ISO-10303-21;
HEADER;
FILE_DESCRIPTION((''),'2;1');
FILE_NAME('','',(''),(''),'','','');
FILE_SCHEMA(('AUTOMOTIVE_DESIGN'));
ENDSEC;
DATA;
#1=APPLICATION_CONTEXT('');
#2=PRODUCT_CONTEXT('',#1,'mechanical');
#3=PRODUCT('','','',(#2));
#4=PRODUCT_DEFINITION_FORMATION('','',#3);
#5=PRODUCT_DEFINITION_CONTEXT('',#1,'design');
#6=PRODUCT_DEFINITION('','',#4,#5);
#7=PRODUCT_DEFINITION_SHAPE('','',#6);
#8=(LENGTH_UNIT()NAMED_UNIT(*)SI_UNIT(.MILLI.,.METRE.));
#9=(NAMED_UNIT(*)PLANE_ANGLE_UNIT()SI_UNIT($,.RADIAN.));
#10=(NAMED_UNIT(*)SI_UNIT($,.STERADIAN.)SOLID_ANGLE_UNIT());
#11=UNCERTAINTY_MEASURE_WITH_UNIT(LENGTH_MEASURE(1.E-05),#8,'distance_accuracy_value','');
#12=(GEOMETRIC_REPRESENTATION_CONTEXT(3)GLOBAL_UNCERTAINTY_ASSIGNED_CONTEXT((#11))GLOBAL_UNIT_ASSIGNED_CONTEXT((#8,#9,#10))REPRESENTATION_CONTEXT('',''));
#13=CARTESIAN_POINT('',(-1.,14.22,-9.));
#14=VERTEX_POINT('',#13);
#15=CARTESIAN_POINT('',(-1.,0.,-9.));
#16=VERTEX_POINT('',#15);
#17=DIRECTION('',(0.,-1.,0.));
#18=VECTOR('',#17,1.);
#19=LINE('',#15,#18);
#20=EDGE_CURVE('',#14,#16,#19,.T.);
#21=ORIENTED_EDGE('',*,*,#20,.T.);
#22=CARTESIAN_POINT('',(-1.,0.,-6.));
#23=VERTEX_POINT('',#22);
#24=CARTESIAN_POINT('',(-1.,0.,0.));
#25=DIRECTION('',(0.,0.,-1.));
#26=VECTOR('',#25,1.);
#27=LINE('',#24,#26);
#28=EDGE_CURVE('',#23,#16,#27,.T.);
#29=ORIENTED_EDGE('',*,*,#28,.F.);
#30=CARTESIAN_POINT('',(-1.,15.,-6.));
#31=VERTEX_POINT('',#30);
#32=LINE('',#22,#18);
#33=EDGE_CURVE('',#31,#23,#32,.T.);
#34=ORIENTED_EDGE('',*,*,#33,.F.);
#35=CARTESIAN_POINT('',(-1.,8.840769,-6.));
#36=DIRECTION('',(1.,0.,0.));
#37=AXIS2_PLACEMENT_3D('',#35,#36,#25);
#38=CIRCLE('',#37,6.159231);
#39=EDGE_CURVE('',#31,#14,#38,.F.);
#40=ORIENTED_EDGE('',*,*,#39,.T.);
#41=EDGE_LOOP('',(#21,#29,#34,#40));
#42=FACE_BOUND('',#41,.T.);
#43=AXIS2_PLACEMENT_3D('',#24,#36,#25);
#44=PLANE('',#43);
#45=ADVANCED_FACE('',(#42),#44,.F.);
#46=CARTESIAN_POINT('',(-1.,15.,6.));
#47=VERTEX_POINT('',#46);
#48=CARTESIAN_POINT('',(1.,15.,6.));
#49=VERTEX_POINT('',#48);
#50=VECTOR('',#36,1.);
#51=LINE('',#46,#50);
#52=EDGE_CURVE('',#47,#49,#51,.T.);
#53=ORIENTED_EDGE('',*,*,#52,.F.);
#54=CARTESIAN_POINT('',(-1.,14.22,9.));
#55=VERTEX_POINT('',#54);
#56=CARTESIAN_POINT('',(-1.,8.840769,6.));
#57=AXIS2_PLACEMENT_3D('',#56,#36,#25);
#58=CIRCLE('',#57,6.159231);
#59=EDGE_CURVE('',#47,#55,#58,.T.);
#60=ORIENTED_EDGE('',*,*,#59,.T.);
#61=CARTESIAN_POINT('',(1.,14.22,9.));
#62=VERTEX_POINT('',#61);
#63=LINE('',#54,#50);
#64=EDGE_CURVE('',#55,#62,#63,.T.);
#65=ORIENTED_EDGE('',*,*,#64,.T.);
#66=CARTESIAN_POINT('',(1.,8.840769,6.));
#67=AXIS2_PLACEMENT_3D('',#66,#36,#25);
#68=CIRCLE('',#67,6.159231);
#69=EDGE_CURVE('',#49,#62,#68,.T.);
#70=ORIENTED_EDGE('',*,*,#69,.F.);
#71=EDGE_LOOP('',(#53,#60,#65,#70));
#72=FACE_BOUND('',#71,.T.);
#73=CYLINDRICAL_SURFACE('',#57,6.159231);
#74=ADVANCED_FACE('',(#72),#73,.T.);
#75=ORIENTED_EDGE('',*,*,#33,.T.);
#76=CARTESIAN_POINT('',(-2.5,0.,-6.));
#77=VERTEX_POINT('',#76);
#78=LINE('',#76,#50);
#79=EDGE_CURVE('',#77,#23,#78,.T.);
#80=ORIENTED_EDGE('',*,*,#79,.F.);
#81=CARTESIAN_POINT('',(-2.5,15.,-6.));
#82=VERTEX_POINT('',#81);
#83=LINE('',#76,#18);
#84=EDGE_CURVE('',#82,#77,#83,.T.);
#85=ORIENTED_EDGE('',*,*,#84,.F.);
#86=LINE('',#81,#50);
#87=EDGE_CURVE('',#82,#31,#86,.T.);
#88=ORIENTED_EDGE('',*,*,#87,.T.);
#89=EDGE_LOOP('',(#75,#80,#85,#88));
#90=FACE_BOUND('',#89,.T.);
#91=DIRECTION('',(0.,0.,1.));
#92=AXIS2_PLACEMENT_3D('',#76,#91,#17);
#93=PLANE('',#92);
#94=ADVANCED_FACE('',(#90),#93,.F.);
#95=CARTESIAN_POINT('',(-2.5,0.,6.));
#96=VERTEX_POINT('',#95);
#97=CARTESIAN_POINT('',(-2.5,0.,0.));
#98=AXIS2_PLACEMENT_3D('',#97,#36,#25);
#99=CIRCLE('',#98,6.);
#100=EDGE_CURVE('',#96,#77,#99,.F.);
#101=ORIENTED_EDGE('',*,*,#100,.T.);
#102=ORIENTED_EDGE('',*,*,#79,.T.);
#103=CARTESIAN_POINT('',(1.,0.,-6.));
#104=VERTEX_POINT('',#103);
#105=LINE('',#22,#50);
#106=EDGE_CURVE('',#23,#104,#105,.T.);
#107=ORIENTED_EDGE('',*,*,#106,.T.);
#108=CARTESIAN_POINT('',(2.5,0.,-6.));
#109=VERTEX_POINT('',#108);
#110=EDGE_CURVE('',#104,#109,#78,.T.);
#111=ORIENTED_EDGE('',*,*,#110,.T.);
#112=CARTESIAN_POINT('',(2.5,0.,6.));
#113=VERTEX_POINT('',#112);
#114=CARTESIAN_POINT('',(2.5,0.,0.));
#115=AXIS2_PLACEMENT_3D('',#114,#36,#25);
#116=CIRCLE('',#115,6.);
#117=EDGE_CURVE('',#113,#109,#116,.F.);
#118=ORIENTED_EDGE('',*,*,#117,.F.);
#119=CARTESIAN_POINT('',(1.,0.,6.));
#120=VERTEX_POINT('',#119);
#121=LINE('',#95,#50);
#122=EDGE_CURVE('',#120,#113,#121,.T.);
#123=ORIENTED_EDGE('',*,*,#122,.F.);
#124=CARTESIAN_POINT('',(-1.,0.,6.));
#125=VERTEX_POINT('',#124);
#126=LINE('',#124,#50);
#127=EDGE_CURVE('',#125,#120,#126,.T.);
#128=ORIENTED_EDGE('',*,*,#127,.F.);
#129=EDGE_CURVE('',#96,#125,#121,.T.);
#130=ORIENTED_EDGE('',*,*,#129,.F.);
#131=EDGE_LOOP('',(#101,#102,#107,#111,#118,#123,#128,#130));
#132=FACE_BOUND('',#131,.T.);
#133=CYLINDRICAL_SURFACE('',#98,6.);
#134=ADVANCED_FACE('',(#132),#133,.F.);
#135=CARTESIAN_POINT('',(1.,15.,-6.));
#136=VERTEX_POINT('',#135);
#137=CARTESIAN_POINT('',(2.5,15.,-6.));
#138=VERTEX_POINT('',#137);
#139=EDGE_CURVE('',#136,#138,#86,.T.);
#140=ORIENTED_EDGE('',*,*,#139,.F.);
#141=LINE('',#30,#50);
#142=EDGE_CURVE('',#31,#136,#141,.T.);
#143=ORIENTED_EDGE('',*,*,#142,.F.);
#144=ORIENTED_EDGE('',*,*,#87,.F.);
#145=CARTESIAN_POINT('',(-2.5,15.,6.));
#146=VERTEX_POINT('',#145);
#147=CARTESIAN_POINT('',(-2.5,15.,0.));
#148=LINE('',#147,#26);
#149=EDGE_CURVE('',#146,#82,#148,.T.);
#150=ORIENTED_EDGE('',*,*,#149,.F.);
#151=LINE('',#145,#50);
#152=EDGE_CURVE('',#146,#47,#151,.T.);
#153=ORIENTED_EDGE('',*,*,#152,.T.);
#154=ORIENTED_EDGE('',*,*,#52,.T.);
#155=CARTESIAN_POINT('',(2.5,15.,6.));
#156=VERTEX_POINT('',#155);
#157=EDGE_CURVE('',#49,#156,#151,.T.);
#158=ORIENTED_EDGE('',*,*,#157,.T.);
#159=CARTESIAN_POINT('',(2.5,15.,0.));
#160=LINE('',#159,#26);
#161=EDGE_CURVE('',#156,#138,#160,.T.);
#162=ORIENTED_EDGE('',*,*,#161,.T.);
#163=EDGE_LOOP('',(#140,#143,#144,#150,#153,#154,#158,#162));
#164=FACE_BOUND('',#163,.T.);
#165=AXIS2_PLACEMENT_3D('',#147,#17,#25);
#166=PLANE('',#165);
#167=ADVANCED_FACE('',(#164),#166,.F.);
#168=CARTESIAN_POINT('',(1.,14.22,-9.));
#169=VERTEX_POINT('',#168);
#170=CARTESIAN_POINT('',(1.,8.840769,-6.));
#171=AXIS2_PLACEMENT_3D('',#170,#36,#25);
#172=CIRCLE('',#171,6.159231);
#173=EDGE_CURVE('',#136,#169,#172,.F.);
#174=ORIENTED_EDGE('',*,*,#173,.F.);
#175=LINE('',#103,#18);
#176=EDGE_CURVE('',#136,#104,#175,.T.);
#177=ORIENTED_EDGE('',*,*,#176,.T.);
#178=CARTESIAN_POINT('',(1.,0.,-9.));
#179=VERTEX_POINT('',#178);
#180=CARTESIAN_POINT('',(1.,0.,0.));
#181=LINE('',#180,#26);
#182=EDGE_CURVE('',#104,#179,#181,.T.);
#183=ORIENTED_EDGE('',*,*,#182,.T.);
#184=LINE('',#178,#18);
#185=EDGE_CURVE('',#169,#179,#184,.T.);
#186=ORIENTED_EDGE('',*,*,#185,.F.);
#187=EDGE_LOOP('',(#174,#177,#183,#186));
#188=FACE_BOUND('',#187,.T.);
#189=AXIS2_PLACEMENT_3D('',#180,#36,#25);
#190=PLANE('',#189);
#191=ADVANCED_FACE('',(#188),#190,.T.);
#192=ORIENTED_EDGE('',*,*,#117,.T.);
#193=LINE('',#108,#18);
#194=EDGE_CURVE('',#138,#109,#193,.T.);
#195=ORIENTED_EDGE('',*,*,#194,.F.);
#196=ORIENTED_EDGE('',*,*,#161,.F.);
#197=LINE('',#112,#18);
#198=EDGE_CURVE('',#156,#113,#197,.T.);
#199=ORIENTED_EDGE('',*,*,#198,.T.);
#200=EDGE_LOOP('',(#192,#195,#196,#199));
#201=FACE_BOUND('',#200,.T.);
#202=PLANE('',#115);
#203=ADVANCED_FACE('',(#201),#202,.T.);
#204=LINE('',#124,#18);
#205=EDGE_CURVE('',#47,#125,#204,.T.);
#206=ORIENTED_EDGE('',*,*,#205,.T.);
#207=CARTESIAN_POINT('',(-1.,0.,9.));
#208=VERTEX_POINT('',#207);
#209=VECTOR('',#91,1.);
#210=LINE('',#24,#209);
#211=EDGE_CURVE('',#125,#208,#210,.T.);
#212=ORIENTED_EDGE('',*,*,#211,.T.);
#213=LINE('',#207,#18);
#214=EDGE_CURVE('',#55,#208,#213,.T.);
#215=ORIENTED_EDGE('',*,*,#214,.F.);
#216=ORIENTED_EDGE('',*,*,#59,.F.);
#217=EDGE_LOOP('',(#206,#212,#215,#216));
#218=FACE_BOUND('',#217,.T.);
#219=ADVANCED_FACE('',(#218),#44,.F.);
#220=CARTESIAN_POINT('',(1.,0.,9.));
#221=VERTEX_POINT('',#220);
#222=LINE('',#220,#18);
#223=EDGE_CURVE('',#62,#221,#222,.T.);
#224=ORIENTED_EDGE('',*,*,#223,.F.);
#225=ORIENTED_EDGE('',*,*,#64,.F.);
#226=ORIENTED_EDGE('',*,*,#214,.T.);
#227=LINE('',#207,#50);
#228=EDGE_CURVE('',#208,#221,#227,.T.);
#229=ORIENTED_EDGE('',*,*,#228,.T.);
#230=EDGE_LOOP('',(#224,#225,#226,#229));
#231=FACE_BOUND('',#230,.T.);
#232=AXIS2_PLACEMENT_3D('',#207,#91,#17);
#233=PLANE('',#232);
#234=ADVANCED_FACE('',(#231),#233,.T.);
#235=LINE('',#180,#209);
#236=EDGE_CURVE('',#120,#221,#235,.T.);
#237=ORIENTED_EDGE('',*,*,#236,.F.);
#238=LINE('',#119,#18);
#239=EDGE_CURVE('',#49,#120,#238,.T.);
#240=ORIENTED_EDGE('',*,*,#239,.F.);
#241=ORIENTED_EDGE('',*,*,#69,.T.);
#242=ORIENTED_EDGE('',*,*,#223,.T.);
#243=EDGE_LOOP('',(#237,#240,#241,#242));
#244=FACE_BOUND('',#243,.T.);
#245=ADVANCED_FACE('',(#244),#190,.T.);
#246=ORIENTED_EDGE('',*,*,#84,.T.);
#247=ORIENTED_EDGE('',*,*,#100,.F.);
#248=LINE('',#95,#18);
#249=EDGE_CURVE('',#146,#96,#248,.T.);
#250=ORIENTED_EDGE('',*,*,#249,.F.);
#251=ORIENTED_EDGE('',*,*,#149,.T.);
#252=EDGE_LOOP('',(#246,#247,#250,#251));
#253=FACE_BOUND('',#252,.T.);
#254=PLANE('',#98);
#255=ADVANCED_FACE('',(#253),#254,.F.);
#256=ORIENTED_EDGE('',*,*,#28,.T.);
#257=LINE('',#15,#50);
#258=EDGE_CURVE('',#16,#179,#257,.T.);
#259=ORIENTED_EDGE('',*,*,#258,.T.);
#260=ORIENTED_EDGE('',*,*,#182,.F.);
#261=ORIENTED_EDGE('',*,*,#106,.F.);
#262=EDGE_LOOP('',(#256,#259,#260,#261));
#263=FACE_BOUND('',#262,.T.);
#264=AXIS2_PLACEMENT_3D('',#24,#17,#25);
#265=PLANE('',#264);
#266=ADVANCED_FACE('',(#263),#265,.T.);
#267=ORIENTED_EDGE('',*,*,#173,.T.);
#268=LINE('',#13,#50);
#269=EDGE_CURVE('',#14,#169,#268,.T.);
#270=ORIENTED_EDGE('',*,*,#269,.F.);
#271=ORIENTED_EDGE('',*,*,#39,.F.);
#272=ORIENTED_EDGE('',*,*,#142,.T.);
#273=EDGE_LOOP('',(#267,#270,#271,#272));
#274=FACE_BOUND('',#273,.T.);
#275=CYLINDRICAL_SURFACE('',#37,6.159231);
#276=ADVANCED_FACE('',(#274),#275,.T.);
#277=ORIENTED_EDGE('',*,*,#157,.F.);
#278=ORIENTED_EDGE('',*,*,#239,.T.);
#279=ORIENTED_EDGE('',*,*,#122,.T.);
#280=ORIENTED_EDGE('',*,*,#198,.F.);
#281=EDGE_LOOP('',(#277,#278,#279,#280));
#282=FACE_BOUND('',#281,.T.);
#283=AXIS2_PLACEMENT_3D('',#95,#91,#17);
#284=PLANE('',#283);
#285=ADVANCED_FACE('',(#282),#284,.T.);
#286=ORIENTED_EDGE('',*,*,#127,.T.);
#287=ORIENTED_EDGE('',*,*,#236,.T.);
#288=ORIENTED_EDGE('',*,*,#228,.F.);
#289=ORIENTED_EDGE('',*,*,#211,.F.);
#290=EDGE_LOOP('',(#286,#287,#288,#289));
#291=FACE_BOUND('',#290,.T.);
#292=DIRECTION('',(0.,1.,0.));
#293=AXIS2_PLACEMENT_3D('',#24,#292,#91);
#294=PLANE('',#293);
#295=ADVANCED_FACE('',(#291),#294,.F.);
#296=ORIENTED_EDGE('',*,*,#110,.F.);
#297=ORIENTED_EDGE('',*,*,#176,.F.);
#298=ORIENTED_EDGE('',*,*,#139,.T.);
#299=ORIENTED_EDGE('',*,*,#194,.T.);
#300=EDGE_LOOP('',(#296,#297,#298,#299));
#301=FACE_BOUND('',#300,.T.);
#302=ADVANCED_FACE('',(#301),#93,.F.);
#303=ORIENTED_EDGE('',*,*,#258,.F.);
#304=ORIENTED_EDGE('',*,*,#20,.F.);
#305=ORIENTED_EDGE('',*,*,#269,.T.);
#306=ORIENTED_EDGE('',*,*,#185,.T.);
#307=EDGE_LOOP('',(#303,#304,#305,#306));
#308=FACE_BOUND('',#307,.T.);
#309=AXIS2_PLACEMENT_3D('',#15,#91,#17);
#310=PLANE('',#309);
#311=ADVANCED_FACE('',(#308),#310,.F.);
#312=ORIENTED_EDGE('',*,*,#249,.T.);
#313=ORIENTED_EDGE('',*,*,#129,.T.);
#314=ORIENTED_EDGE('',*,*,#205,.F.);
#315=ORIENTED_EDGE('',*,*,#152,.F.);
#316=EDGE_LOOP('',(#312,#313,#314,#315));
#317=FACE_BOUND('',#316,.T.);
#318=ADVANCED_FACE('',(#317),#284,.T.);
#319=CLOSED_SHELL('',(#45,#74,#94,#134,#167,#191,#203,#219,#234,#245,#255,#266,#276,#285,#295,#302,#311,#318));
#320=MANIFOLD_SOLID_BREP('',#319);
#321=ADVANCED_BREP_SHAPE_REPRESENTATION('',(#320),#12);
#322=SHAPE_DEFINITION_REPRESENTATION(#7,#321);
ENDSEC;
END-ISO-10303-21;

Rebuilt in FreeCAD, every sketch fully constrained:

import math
import FreeCAD as App
import Part
import Sketcher
from FreeCAD import Vector

doc = App.newDocument("Part")
body = doc.addObject("PartDesign::Body", "Body")

sketch1 = doc.addObject("Sketcher::SketchObject", "Sketch")
body.addObject(sketch1)
sketch1.AttachmentSupport = (doc.YZ_Plane, [""])
sketch1.MapMode = "FlatFace"
sketch1.addGeometry([
    Part.ArcOfCircle(Part.Circle(Vector(0, 0, 0), Vector(0, 0, 1), 6), math.radians(0), math.radians(90)),
    Part.ArcOfCircle(Part.Circle(Vector(0, 0, 0), Vector(0, 0, 1), 6), math.radians(-90), math.radians(0)),
    Part.LineSegment(Vector(0, -6, 0), Vector(15, -6, 0)),
    Part.LineSegment(Vector(15, -6, 0), Vector(15, 6, 0)),
    Part.LineSegment(Vector(15, 6, 0), Vector(0, 6, 0)),
], False)
sketch1.addConstraint([
    Sketcher.Constraint("Tangent", 0, 1, 1, 2),
    Sketcher.Constraint("Tangent", 1, 1, 2, 1),
    Sketcher.Constraint("Coincident", 2, 2, 3, 1),
    Sketcher.Constraint("Coincident", 3, 2, 4, 1),
    Sketcher.Constraint("Tangent", 4, 2, 0, 2),
    Sketcher.Constraint("Horizontal", 2),
    Sketcher.Constraint("Vertical", 3),
    Sketcher.Constraint("Horizontal", 4),
    Sketcher.Constraint("Coincident", 0, 3, -1, 1),
    Sketcher.Constraint("Equal", 0, 1),
    Sketcher.Constraint("PointOnObject", 0, 1, -1),
    Sketcher.Constraint("Radius", 0, 6.0),
    Sketcher.Constraint("DistanceX", 2, 1, 2, 2, 15.0),
])
pad1 = doc.addObject("PartDesign::Pad", "Pad")
body.addObject(pad1)
pad1.Profile = sketch1
pad1.Type = "TwoLengths"
pad1.Length = 2.5
pad1.Length2 = 2.5

sketch2 = doc.addObject("Sketcher::SketchObject", "Sketch001")
body.addObject(sketch2)
sketch2.AttachmentSupport = (doc.YZ_Plane, [""])
sketch2.MapMode = "FlatFace"
sketch2.addGeometry([
    Part.LineSegment(Vector(0, 6, 0), Vector(15, 6, 0)),
    Part.ArcOfCircle(Part.Circle(Vector(8.840769, 6, 0), Vector(0, 0, 1), 6.159231), math.radians(0), math.radians(29.148432)),
    Part.LineSegment(Vector(14.22, 9, 0), Vector(0, 9, 0)),
    Part.LineSegment(Vector(0, 9, 0), Vector(0, 6, 0)),
    Part.ArcOfCircle(Part.Circle(Vector(8.840769, -6, 0), Vector(0, 0, 1), 6.159231), math.radians(-29.148432), math.radians(0)),
    Part.LineSegment(Vector(15, -6, 0), Vector(0, -6, 0)),
    Part.LineSegment(Vector(0, -6, 0), Vector(0, -9, 0)),
    Part.LineSegment(Vector(0, -9, 0), Vector(14.22, -9, 0)),
], False)
sketch2.addConstraint([
    Sketcher.Constraint("Coincident", 0, 2, 1, 1),
    Sketcher.Constraint("Coincident", 1, 2, 2, 1),
    Sketcher.Constraint("Coincident", 2, 2, 3, 1),
    Sketcher.Constraint("Coincident", 3, 2, 0, 1),
    Sketcher.Constraint("Coincident", 4, 2, 5, 1),
    Sketcher.Constraint("Coincident", 5, 2, 6, 1),
    Sketcher.Constraint("Coincident", 6, 2, 7, 1),
    Sketcher.Constraint("Coincident", 7, 2, 4, 1),
    Sketcher.Constraint("Horizontal", 0),
    Sketcher.Constraint("Horizontal", 2),
    Sketcher.Constraint("Vertical", 3),
    Sketcher.Constraint("Horizontal", 5),
    Sketcher.Constraint("Vertical", 6),
    Sketcher.Constraint("Horizontal", 7),
    Sketcher.Constraint("Equal", 1, 4),
    Sketcher.Constraint("Symmetric", 3, 2, 5, 2, -1, 1),
    Sketcher.Constraint("Symmetric", 1, 3, 4, 3, -1),
    Sketcher.Constraint("Symmetric", 2, 2, 6, 2, -1),
    Sketcher.Constraint("Horizontal", 1, 3, 0, 2),
    Sketcher.Constraint("DistanceX", 0, 1, 0, 2, 15.0),
    Sketcher.Constraint("DistanceY", 3, 2, 3, 1, 3.0),
    Sketcher.Constraint("DistanceY", -1, 1, 1, 3, 6.0),
    Sketcher.Constraint("DistanceX", 2, 2, 2, 1, 14.22),
])
pad2 = doc.addObject("PartDesign::Pad", "Pad001")
body.addObject(pad2)
pad2.Profile = sketch2
pad2.Type = "TwoLengths"
pad2.Length = 1
pad2.Length2 = 1

doc.recompute()
